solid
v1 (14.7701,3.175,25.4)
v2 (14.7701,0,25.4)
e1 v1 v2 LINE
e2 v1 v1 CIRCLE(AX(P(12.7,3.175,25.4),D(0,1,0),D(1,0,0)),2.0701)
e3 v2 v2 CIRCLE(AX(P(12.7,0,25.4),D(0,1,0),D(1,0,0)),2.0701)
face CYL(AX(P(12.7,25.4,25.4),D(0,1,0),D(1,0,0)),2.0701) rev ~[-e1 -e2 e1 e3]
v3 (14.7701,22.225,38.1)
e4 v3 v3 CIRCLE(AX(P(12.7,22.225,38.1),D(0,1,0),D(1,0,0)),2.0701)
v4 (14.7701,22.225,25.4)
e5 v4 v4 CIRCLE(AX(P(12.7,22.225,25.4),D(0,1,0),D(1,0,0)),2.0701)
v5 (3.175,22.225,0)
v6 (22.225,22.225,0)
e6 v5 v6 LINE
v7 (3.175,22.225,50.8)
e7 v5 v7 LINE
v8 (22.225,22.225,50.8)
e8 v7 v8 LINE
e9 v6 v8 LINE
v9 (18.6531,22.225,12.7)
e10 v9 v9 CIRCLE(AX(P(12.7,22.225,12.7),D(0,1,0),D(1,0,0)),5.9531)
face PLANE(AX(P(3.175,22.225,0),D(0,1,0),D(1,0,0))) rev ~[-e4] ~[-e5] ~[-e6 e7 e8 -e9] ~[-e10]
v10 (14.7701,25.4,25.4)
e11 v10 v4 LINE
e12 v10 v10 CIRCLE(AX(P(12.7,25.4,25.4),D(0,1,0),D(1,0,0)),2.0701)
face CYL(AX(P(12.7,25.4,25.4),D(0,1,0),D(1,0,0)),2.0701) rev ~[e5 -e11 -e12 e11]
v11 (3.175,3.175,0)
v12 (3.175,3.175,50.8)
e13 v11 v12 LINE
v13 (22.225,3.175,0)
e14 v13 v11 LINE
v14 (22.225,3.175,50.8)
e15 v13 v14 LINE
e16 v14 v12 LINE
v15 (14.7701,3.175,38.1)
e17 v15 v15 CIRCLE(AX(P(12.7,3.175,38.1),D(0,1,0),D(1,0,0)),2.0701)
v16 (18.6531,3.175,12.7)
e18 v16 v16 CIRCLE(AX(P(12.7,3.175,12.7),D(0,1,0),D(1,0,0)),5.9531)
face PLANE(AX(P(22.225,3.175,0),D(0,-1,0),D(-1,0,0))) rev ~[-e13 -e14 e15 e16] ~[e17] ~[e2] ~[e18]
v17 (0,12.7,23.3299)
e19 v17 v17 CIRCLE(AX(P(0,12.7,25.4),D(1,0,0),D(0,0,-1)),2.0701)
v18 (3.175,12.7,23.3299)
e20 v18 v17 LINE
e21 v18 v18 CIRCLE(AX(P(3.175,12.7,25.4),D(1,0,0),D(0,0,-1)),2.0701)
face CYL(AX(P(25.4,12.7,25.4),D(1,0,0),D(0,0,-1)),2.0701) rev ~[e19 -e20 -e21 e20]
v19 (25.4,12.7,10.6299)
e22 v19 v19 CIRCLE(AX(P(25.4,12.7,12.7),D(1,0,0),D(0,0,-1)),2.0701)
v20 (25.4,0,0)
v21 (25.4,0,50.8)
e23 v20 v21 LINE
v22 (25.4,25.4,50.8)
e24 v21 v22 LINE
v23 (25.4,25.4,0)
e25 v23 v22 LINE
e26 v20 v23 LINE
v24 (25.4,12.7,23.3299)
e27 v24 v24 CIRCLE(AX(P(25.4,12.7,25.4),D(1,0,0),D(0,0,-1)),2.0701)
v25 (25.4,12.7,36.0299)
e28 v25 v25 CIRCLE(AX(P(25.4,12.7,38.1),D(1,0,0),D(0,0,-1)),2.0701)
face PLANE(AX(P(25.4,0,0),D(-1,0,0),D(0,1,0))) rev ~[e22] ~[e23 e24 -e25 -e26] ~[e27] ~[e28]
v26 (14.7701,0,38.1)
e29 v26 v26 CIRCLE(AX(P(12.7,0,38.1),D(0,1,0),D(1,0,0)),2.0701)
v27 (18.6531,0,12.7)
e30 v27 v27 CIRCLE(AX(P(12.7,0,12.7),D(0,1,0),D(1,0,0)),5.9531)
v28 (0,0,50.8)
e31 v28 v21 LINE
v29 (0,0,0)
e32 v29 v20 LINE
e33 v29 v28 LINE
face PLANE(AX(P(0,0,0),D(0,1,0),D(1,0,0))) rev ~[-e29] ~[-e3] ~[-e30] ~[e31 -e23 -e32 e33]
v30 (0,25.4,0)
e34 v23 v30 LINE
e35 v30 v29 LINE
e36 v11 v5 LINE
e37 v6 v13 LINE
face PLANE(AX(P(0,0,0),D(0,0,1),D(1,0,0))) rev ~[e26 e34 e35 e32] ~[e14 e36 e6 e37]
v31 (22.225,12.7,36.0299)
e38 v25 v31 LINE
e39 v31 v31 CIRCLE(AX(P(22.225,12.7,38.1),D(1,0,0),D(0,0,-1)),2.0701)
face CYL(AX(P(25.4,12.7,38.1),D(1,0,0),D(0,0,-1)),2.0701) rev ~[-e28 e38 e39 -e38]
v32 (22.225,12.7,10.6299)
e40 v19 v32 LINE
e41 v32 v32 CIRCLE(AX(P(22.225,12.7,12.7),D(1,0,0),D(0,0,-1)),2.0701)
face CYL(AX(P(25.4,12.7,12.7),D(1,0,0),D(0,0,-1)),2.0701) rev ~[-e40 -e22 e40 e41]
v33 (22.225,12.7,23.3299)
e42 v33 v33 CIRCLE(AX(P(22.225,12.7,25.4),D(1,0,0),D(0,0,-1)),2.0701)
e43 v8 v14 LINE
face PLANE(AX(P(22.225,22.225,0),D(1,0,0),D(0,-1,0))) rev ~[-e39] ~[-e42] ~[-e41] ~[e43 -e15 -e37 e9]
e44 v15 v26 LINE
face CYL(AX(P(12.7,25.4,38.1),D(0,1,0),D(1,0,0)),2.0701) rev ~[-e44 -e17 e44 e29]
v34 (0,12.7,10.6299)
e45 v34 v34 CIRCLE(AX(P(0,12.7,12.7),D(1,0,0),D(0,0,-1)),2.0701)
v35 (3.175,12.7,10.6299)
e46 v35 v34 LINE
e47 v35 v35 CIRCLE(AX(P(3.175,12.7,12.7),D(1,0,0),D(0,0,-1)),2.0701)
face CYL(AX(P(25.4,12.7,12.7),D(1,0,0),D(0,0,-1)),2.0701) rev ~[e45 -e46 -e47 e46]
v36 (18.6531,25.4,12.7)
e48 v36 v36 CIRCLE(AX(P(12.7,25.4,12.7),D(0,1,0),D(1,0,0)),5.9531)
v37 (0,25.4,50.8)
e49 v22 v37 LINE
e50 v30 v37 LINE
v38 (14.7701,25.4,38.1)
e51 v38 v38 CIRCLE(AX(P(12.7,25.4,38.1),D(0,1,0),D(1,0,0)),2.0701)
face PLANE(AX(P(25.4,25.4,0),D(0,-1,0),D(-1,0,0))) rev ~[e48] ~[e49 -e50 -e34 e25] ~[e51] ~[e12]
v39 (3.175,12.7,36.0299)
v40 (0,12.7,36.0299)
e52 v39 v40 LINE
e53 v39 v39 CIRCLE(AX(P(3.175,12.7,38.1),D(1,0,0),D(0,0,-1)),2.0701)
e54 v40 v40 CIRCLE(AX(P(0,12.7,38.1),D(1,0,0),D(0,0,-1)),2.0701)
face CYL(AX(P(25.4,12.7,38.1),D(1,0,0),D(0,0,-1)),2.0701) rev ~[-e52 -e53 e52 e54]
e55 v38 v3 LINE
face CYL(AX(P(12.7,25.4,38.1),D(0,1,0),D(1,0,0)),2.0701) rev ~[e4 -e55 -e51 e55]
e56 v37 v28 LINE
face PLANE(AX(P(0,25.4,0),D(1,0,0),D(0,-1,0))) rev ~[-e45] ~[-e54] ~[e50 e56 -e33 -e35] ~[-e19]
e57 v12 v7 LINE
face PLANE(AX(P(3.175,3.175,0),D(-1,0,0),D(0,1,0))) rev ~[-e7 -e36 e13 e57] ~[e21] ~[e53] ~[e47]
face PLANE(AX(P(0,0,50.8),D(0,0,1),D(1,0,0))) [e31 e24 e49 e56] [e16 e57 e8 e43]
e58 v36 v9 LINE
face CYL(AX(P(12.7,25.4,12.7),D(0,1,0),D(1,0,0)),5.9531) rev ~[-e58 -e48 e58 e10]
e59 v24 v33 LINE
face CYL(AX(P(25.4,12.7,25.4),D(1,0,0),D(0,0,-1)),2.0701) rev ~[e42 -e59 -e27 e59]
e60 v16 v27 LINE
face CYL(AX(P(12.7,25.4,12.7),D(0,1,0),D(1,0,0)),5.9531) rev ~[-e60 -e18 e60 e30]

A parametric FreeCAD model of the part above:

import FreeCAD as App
import Part
import Sketcher
Q = App.Units.Quantity

doc = App.newDocument("Part")
params = doc.addObject("Spreadsheet::Sheet", "Params")
for row, (alias, value) in enumerate([
    ("sketch1_width", "1 in"),
    ("pad1_length", "2 in"),
    ("sketch2_diameter", "0.163 in"),
    ("pocket1_length", "2 in"),
    ("sketch3_diameter", "0.163 in"),
    ("sketch3_diameter2", "0.468748 in"),
    ("pocket2_length", "2 in"),
], start=1):
    params.set(f"A{row}", alias)
    params.set(f"B{row}", "=" + value)
    params.setAlias(f"B{row}", alias)

body = doc.addObject("PartDesign::Body", "Body")

sketch1 = body.newObject("Sketcher::SketchObject", "Sketch")
sketch1.AttachmentSupport = (doc.getObject("XY_Plane"), [""])
sketch1.MapMode = "FlatFace"
sketch1.addGeometry(Part.LineSegment(App.Vector(0, 25, 0), App.Vector(0, 0, 0)), False)
sketch1.addGeometry(Part.LineSegment(App.Vector(0, 0, 0), App.Vector(25, 0, 0)), False)
sketch1.addGeometry(Part.LineSegment(App.Vector(25, 0, 0), App.Vector(25, 25, 0)), False)
sketch1.addGeometry(Part.LineSegment(App.Vector(25, 25, 0), App.Vector(0, 25, 0)), False)
sketch1.addGeometry(Part.LineSegment(App.Vector(3, 3, 0), App.Vector(3, 22, 0)), False)
sketch1.addGeometry(Part.LineSegment(App.Vector(3, 22, 0), App.Vector(22, 22, 0)), False)
sketch1.addGeometry(Part.LineSegment(App.Vector(22, 22, 0), App.Vector(22, 3, 0)), False)
sketch1.addGeometry(Part.LineSegment(App.Vector(22, 3, 0), App.Vector(3, 3, 0)), False)
sketch1.addConstraint(Sketcher.Constraint("Coincident", 0, 2, 1, 1))
sketch1.addConstraint(Sketcher.Constraint("Coincident", 1, 2, 2, 1))
sketch1.addConstraint(Sketcher.Constraint("Coincident", 2, 2, 3, 1))
sketch1.addConstraint(Sketcher.Constraint("Coincident", 3, 2, 0, 1))
sketch1.addConstraint(Sketcher.Constraint("Coincident", 4, 2, 5, 1))
sketch1.addConstraint(Sketcher.Constraint("Coincident", 5, 2, 6, 1))
sketch1.addConstraint(Sketcher.Constraint("Coincident", 6, 2, 7, 1))
sketch1.addConstraint(Sketcher.Constraint("Coincident", 7, 2, 4, 1))
sketch1.addConstraint(Sketcher.Constraint("Vertical", 0))
sketch1.addConstraint(Sketcher.Constraint("Horizontal", 1))
sketch1.addConstraint(Sketcher.Constraint("Vertical", 2))
sketch1.addConstraint(Sketcher.Constraint("Horizontal", 3))
sketch1.addConstraint(Sketcher.Constraint("Vertical", 4))
sketch1.addConstraint(Sketcher.Constraint("Horizontal", 5))
sketch1.addConstraint(Sketcher.Constraint("Vertical", 6))
sketch1.addConstraint(Sketcher.Constraint("Horizontal", 7))
sketch1.addConstraint(Sketcher.Constraint("Coincident", 0, 2, -1, 1))
sketch1.addConstraint(Sketcher.Constraint("Equal", 3, 0))
sketch1.addConstraint(Sketcher.Constraint("Equal", 7, 4))
sketch1.addConstraint(Sketcher.Constraint("DistanceX", 1, 1, 1, 2, Q("1 in")))
sketch1.addConstraint(Sketcher.Constraint("DistanceX", -1, 1, 4, 2, Q("0.125 in")))
sketch1.addConstraint(Sketcher.Constraint("DistanceY", -1, 1, 6, 2, Q("0.125 in")))
sketch1.addConstraint(Sketcher.Constraint("DistanceY", 4, 2, 3, 2, Q("0.125 in")))
sketch1.setExpression("Constraints[19]", "Params.sketch1_width")
pad1 = body.newObject("PartDesign::Pad", "Pad")
pad1.Profile = sketch1
pad1.setExpression("Length", "Params.pad1_length")

sketch2 = body.newObject("Sketcher::SketchObject", "Sketch001")
sketch2.AttachmentSupport = (doc.getObject("YZ_Plane"), [""])
sketch2.MapMode = "FlatFace"
sketch2.AttachmentOffset = App.Placement(App.Vector(0, 0, 1 * 25.4), App.Rotation())
sketch2.addGeometry(Part.Circle(App.Vector(12.7, 38.1, 0), App.Vector(0, 0, 1), 2.1), False)
sketch2.addGeometry(Part.Circle(App.Vector(12.7, 25.4, 0), App.Vector(0, 0, 1), 2.1), False)
sketch2.addGeometry(Part.Circle(App.Vector(12.7, 12.7, 0), App.Vector(0, 0, 1), 2.1), False)
sketch2.addConstraint(Sketcher.Constraint("Equal", 0, 1))
sketch2.addConstraint(Sketcher.Constraint("Equal", 1, 2))
sketch2.addConstraint(Sketcher.Constraint("Vertical", 0, 3, 1, 3))
sketch2.addConstraint(Sketcher.Constraint("Vertical", 1, 3, 2, 3))
sketch2.addConstraint(Sketcher.Constraint("Diameter", 0, Q("0.163 in")))
sketch2.addConstraint(Sketcher.Constraint("DistanceY", -1, 1, 1, 3, Q("1 in")))
sketch2.addConstraint(Sketcher.Constraint("DistanceY", 2, 3, 0, 3, Q("1 in")))
sketch2.addConstraint(Sketcher.Constraint("DistanceX", -1, 1, 0, 3, Q("0.5 in")))
sketch2.addConstraint(Sketcher.Constraint("DistanceY", -1, 1, 2, 3, Q("0.5 in")))
sketch2.setExpression("Constraints[4]", "Params.sketch2_diameter")
pocket1 = body.newObject("PartDesign::Pocket", "Pocket")
pocket1.Profile = sketch2
pocket1.setExpression("Length", "Params.pocket1_length")

sketch3 = body.newObject("Sketcher::SketchObject", "Sketch002")
sketch3.AttachmentSupport = (doc.getObject("XZ_Plane"), [""])
sketch3.MapMode = "FlatFace"
sketch3.AttachmentOffset = App.Placement(App.Vector(0, 0, -1 * 25.4), App.Rotation())
sketch3.addGeometry(Part.Circle(App.Vector(12.7, 38.1, 0), App.Vector(0, 0, 1), 2.1), False)
sketch3.addGeometry(Part.Circle(App.Vector(12.7, 25.4, 0), App.Vector(0, 0, 1), 2.1), False)
sketch3.addGeometry(Part.Circle(App.Vector(12.7, 12.7, 0), App.Vector(0, 0, 1), 6), False)
sketch3.addConstraint(Sketcher.Constraint("Equal", 0, 1))
sketch3.addConstraint(Sketcher.Constraint("Vertical", 0, 3, 1, 3))
sketch3.addConstraint(Sketcher.Constraint("Vertical", 1, 3, 2, 3))
sketch3.addConstraint(Sketcher.Constraint("Diameter", 0, Q("0.163 in")))
sketch3.addConstraint(Sketcher.Constraint("Diameter", 2, Q("0.468748 in")))
sketch3.addConstraint(Sketcher.Constraint("DistanceY", -1, 1, 1, 3, Q("1 in")))
sketch3.addConstraint(Sketcher.Constraint("DistanceY", 2, 3, 0, 3, Q("1 in")))
sketch3.addConstraint(Sketcher.Constraint("DistanceX", -1, 1, 0, 3, Q("0.5 in")))
sketch3.addConstraint(Sketcher.Constraint("DistanceY", -1, 1, 2, 3, Q("0.5 in")))
sketch3.setExpression("Constraints[3]", "Params.sketch3_diameter")
sketch3.setExpression("Constraints[4]", "Params.sketch3_diameter2")
pocket2 = body.newObject("PartDesign::Pocket", "Pocket001")
pocket2.Profile = sketch3
pocket2.setExpression("Length", "Params.pocket2_length")
pocket2.Reversed = True

doc.recompute()
